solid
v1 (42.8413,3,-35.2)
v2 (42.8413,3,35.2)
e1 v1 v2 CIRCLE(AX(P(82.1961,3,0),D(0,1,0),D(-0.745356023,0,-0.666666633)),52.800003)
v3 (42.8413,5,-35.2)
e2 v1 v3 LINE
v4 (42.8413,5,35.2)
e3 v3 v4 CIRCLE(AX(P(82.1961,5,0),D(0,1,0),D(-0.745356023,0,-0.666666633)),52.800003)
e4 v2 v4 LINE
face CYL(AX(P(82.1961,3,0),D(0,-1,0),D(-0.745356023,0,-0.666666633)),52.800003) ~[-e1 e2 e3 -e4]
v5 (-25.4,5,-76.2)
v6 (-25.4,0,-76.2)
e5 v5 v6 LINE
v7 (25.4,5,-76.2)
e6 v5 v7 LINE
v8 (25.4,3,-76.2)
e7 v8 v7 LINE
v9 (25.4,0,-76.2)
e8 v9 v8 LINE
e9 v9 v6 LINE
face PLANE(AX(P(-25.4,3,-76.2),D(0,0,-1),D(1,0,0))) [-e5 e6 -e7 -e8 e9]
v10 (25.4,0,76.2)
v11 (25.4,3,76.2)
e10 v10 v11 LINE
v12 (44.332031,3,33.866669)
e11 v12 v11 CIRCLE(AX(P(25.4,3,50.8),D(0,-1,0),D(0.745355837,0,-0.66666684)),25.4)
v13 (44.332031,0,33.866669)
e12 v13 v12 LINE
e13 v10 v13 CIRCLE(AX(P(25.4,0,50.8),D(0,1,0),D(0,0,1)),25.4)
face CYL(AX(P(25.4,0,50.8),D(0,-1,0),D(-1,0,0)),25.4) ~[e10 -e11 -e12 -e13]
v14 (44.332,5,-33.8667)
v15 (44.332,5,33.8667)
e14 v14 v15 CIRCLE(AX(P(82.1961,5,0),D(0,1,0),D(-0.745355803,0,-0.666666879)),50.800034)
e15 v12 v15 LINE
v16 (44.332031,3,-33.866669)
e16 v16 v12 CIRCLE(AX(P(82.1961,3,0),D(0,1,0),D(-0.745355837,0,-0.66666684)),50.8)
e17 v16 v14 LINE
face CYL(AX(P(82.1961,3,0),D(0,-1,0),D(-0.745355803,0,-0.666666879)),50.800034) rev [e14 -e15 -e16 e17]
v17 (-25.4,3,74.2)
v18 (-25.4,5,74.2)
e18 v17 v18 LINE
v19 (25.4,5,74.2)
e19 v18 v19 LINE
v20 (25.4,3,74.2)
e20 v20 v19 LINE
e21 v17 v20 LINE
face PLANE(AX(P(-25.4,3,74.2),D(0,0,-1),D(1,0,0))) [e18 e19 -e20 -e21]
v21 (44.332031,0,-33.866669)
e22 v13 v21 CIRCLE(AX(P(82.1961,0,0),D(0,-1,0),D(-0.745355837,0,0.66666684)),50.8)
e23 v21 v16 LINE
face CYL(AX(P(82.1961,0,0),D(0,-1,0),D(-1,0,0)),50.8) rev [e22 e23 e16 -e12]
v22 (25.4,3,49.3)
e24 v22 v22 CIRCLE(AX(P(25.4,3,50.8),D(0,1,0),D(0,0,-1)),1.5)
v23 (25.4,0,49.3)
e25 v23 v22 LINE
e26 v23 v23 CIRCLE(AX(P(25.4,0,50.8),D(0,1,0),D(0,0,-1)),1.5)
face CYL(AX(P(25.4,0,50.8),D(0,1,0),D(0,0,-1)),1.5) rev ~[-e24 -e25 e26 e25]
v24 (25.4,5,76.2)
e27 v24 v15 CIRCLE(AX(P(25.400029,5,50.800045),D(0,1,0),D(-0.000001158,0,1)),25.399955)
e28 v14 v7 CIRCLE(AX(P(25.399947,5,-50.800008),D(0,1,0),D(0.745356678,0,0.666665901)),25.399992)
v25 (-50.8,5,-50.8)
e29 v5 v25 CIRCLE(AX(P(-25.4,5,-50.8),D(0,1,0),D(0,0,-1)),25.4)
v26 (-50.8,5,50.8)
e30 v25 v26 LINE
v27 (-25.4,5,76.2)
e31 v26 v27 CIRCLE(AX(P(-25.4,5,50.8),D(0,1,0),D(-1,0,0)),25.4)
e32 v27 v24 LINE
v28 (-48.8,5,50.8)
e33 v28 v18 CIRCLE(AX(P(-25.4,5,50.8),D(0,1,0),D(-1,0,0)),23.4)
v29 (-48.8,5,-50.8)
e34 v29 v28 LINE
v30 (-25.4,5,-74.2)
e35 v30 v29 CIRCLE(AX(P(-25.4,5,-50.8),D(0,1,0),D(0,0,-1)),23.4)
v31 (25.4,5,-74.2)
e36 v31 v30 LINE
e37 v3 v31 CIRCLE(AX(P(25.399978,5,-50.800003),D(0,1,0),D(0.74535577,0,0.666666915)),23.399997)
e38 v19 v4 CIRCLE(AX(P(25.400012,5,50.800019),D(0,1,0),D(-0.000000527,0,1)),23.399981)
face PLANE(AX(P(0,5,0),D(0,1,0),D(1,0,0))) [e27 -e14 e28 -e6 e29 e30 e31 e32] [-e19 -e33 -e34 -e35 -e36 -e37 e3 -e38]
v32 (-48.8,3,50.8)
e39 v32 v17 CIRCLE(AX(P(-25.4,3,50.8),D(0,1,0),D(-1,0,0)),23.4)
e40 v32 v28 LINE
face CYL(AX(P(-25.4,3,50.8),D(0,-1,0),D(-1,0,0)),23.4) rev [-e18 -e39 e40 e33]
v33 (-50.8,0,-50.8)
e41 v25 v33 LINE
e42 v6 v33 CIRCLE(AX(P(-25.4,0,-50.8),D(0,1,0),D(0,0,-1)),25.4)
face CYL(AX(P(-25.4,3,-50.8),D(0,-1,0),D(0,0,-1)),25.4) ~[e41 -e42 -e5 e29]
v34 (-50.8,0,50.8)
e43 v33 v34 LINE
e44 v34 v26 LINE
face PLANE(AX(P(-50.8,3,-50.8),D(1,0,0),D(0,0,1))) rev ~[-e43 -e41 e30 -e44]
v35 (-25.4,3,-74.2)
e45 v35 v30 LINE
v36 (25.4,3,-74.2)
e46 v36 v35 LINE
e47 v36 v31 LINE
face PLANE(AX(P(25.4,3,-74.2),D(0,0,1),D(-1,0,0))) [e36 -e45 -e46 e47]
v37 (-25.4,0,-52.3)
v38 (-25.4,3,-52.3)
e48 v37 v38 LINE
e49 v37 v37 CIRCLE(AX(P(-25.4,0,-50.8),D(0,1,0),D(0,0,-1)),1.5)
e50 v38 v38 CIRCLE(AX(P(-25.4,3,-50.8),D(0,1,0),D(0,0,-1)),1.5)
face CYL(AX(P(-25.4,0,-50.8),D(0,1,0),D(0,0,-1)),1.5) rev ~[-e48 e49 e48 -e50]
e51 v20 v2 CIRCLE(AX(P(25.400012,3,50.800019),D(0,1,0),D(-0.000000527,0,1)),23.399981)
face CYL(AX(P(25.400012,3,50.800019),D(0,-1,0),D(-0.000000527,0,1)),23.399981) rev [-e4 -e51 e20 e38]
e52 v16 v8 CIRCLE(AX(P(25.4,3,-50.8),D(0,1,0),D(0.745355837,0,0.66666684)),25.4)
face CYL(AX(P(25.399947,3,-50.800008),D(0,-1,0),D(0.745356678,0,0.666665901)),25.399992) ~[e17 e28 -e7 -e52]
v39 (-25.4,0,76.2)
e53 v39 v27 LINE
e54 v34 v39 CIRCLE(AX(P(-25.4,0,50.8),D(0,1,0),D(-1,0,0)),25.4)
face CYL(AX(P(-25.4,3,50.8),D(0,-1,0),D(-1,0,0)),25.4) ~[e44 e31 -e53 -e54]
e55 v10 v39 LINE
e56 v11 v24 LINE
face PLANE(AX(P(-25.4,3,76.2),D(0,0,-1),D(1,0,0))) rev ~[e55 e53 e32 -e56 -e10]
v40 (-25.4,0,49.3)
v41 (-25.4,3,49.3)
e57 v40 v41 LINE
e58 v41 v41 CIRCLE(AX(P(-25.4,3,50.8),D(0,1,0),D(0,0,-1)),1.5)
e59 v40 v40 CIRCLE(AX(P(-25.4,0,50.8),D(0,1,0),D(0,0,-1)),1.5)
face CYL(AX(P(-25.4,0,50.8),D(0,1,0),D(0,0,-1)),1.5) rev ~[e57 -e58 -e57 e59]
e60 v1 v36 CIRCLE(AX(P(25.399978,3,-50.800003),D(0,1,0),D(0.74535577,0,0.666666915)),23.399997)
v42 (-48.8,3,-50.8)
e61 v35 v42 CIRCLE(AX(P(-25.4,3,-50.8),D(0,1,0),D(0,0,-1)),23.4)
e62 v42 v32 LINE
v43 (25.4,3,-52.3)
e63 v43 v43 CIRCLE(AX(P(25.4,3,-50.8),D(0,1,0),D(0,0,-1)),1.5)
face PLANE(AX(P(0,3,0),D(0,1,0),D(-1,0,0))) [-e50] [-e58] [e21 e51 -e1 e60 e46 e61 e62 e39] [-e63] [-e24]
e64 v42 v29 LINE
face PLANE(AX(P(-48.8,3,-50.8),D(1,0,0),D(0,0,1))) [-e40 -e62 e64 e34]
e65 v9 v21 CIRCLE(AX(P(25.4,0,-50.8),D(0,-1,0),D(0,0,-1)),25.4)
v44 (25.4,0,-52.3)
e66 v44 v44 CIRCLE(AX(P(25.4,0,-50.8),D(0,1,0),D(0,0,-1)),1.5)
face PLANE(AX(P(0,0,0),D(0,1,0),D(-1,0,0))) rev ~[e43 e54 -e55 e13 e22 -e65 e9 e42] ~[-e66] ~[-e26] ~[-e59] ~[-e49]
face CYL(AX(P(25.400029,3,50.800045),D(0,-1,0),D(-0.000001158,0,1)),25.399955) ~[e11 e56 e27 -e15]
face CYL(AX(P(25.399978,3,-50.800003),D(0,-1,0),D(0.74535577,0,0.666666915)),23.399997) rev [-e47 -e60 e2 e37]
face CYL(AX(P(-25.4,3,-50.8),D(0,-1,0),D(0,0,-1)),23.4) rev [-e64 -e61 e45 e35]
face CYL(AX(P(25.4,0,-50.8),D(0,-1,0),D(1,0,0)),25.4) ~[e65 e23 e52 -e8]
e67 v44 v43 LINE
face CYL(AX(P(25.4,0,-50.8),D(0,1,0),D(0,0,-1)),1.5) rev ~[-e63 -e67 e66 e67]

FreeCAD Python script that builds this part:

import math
import FreeCAD as App
import Part
import Sketcher
Q = App.Units.Quantity

doc = App.newDocument("Part")
params = doc.addObject("Spreadsheet::Sheet", "Params")
for row, (alias, value) in enumerate([
    ("sketch1_radius", "2 in"),
    ("sketch1_radius2", "1 in"),
    ("sketch1_height", "4 in"),
    ("pad1_length", "0.1181102 in"),
    ("sketch2_radius", "1 in"),
    ("sketch2_radius2", "2 in"),
    ("sketch2_width", "2 in"),
    ("sketch2_height", "4 in"),
    ("pad2_length", "2 mm"),
    ("hole_diameter", "0.1181102 in"),
    ("hole_depth", "1 in"),
], start=1):
    params.set(f"A{row}", alias)
    params.set(f"B{row}", "=" + value)
    params.setAlias(f"B{row}", alias)

body = doc.addObject("PartDesign::Body", "Body")

sketch1 = doc.addObject("Sketcher::SketchObject", "Sketch")
body.addObject(sketch1)
sketch1.AttachmentSupport = (doc.XZ_Plane, [""])
sketch1.MapMode = "FlatFace"
sketch1.addGeometry(Part.ArcOfCircle(Part.Circle(App.Vector(82, 0, 0), App.Vector(0, 0, 1), 51), math.radians(138), math.radians(222)), False)
sketch1.addGeometry(Part.ArcOfCircle(Part.Circle(App.Vector(25, -51, 0), App.Vector(0, 0, 1), 25), math.radians(-90), math.radians(42)), False)
sketch1.addGeometry(Part.LineSegment(App.Vector(25, -76, 0), App.Vector(-25, -76, 0)), False)
sketch1.addGeometry(Part.ArcOfCircle(Part.Circle(App.Vector(-25, -51, 0), App.Vector(0, 0, 1), 25), math.radians(180), math.radians(270)), False)
sketch1.addGeometry(Part.LineSegment(App.Vector(-51, -51, 0), App.Vector(-51, 51, 0)), False)
sketch1.addGeometry(Part.ArcOfCircle(Part.Circle(App.Vector(-25, 51, 0), App.Vector(0, 0, 1), 25), math.radians(90), math.radians(180)), False)
sketch1.addGeometry(Part.LineSegment(App.Vector(-25, 76, 0), App.Vector(25, 76, 0)), False)
sketch1.addGeometry(Part.ArcOfCircle(Part.Circle(App.Vector(25, 51, 0), App.Vector(0, 0, 1), 25), math.radians(-42), math.radians(90)), False)
sketch1.addConstraint(Sketcher.Constraint("Tangent", 0, 2, 1, 2))
sketch1.addConstraint(Sketcher.Constraint("Tangent", 1, 1, 2, 1))
sketch1.addConstraint(Sketcher.Constraint("Tangent", 2, 2, 3, 2))
sketch1.addConstraint(Sketcher.Constraint("Tangent", 3, 1, 4, 1))
sketch1.addConstraint(Sketcher.Constraint("Tangent", 4, 2, 5, 2))
sketch1.addConstraint(Sketcher.Constraint("Tangent", 5, 1, 6, 1))
sketch1.addConstraint(Sketcher.Constraint("Tangent", 6, 2, 7, 2))
sketch1.addConstraint(Sketcher.Constraint("Tangent", 7, 1, 0, 1))
sketch1.addConstraint(Sketcher.Constraint("Horizontal", 2))
sketch1.addConstraint(Sketcher.Constraint("Vertical", 4))
sketch1.addConstraint(Sketcher.Constraint("Horizontal", 6))
sketch1.addConstraint(Sketcher.Constraint("Equal", 1, 3))
sketch1.addConstraint(Sketcher.Constraint("Equal", 3, 5))
sketch1.addConstraint(Sketcher.Constraint("Equal", 5, 7))
sketch1.addConstraint(Sketcher.Constraint("Symmetric", 1, 3, 5, 3, -1, 1))
sketch1.addConstraint(Sketcher.Constraint("PointOnObject", 0, 3, -1))
sketch1.addConstraint(Sketcher.Constraint("Radius", 0, Q("2 in")))
sketch1.addConstraint(Sketcher.Constraint("Radius", 1, Q("1 in")))
sketch1.addConstraint(Sketcher.Constraint("DistanceY", 4, 1, 4, 2, Q("4 in")))
sketch1.addConstraint(Sketcher.Constraint("DistanceX", -1, 1, 1, 3, Q("1 in")))
sketch1.setExpression("Constraints[16]", "Params.sketch1_radius")
sketch1.setExpression("Constraints[17]", "Params.sketch1_radius2")
sketch1.setExpression("Constraints[18]", "Params.sketch1_height")
pad1 = doc.addObject("PartDesign::Pad", "Pad")
body.addObject(pad1)
pad1.Profile = sketch1
pad1.setExpression("Length", "Params.pad1_length")
pad1.Reversed = True

sketch2 = doc.addObject("Sketcher::SketchObject", "Sketch001")
body.addObject(sketch2)
sketch2.AttachmentSupport = (doc.XZ_Plane, [""])
sketch2.MapMode = "FlatFace"
sketch2.AttachmentOffset = App.Placement(App.Vector(0, 0, -0.1181102 * 25.4), App.Rotation())
sketch2.addGeometry(Part.LineSegment(App.Vector(-51, -51, 0), App.Vector(-51, 51, 0)), False)
sketch2.addGeometry(Part.ArcOfCircle(Part.Circle(App.Vector(-25, 51, 0), App.Vector(0, 0, 1), 25), math.radians(90), math.radians(180)), False)
sketch2.addGeometry(Part.LineSegment(App.Vector(-25, 76, 0), App.Vector(25, 76, 0)), False)
sketch2.addGeometry(Part.ArcOfCircle(Part.Circle(App.Vector(25, 51, 0), App.Vector(0, 0, 1), 25), math.radians(-42), math.radians(90)), False)
sketch2.addGeometry(Part.ArcOfCircle(Part.Circle(App.Vector(82, 0, 0), App.Vector(0, 0, 1), 51), math.radians(138), math.radians(222)), False)
sketch2.addGeometry(Part.ArcOfCircle(Part.Circle(App.Vector(25, -51, 0), App.Vector(0, 0, 1), 25), math.radians(-90), math.radians(42)), False)
sketch2.addGeometry(Part.LineSegment(App.Vector(25, -76, 0), App.Vector(-25, -76, 0)), False)
sketch2.addGeometry(Part.ArcOfCircle(Part.Circle(App.Vector(-25, -51, 0), App.Vector(0, 0, 1), 25), math.radians(180), math.radians(270)), False)
sketch2.addGeometry(Part.ArcOfCircle(Part.Circle(App.Vector(-25, 51, 0), App.Vector(0, 0, 1), 23), math.radians(90), math.radians(180)), False)
sketch2.addGeometry(Part.LineSegment(App.Vector(-49, 51, 0), App.Vector(-49, -51, 0)), False)
sketch2.addGeometry(Part.ArcOfCircle(Part.Circle(App.Vector(-25, -51, 0), App.Vector(0, 0, 1), 23), math.radians(180), math.radians(270)), False)
sketch2.addGeometry(Part.LineSegment(App.Vector(-25, -74, 0), App.Vector(25, -74, 0)), False)
sketch2.addGeometry(Part.ArcOfCircle(Part.Circle(App.Vector(25, -51, 0), App.Vector(0, 0, 1), 23), math.radians(-90), math.radians(42)), False)
sketch2.addGeometry(Part.ArcOfCircle(Part.Circle(App.Vector(82, 0, 0), App.Vector(0, 0, 1), 53), math.radians(138), math.radians(222)), False)
sketch2.addGeometry(Part.ArcOfCircle(Part.Circle(App.Vector(25, 51, 0), App.Vector(0, 0, 1), 23), math.radians(-42), math.radians(90)), False)
sketch2.addGeometry(Part.LineSegment(App.Vector(25, 74, 0), App.Vector(-25, 74, 0)), False)
sketch2.addConstraint(Sketcher.Constraint("Tangent", 0, 2, 1, 2))
sketch2.addConstraint(Sketcher.Constraint("Tangent", 1, 1, 2, 1))
sketch2.addConstraint(Sketcher.Constraint("Tangent", 2, 2, 3, 2))
sketch2.addConstraint(Sketcher.Constraint("Tangent", 3, 1, 4, 1))
sketch2.addConstraint(Sketcher.Constraint("Tangent", 4, 2, 5, 2))
sketch2.addConstraint(Sketcher.Constraint("Tangent", 5, 1, 6, 1))
sketch2.addConstraint(Sketcher.Constraint("Tangent", 6, 2, 7, 2))
sketch2.addConstraint(Sketcher.Constraint("Tangent", 7, 1, 0, 1))
sketch2.addConstraint(Sketcher.Constraint("Tangent", 8, 2, 9, 1))
sketch2.addConstraint(Sketcher.Constraint("Tangent", 9, 2, 10, 1))
sketch2.addConstraint(Sketcher.Constraint("Tangent", 10, 2, 11, 1))
sketch2.addConstraint(Sketcher.Constraint("Tangent", 11, 2, 12, 1))
sketch2.addConstraint(Sketcher.Constraint("Tangent", 12, 2, 13, 2))
sketch2.addConstraint(Sketcher.Constraint("Tangent", 13, 1, 14, 1))
sketch2.addConstraint(Sketcher.Constraint("Tangent", 14, 2, 15, 1))
sketch2.addConstraint(Sketcher.Constraint("Tangent", 15, 2, 8, 1))
sketch2.addConstraint(Sketcher.Constraint("Vertical", 0))
sketch2.addConstraint(Sketcher.Constraint("Horizontal", 2))
sketch2.addConstraint(Sketcher.Constraint("Horizontal", 6))
sketch2.addConstraint(Sketcher.Constraint("Vertical", 9))
sketch2.addConstraint(Sketcher.Constraint("Horizontal", 11))
sketch2.addConstraint(Sketcher.Constraint("Horizontal", 15))
sketch2.addConstraint(Sketcher.Constraint("Coincident", 8, 3, 1, 3))
sketch2.addConstraint(Sketcher.Constraint("Coincident", 10, 3, 7, 3))
sketch2.addConstraint(Sketcher.Constraint("Coincident", 12, 3, 5, 3))
sketch2.addConstraint(Sketcher.Constraint("Coincident", 13, 3, 4, 3))
sketch2.addConstraint(Sketcher.Constraint("Equal", 1, 3))
sketch2.addConstraint(Sketcher.Constraint("Equal", 3, 5))
sketch2.addConstraint(Sketcher.Constraint("Equal", 5, 7))
sketch2.addConstraint(Sketcher.Constraint("Equal", 12, 14))
sketch2.addConstraint(Sketcher.Constraint("Symmetric", 1, 3, 5, 3, -1, 1))
sketch2.addConstraint(Sketcher.Constraint("PointOnObject", 4, 3, -1))
sketch2.addConstraint(Sketcher.Constraint("Radius", 1, Q("1 in")))
sketch2.addConstraint(Sketcher.Constraint("Radius", 4, Q("2 in")))
sketch2.addConstraint(Sketcher.Constraint("DistanceX", 2, 1, 2, 2, Q("2 in")))
sketch2.addConstraint(Sketcher.Constraint("DistanceY", 0, 1, 0, 2, Q("4 in")))
sketch2.addConstraint(Sketcher.Constraint("Radius", 8, 23.4))
sketch2.setExpression("Constraints[32]", "Params.sketch2_radius")
sketch2.setExpression("Constraints[33]", "Params.sketch2_radius2")
sketch2.setExpression("Constraints[34]", "Params.sketch2_width")
sketch2.setExpression("Constraints[35]", "Params.sketch2_height")
pad2 = doc.addObject("PartDesign::Pad", "Pad001")
body.addObject(pad2)
pad2.Profile = sketch2
pad2.setExpression("Length", "Params.pad2_length")
pad2.Reversed = True

sketch3 = doc.addObject("Sketcher::SketchObject", "Sketch002")
body.addObject(sketch3)
sketch3.AttachmentSupport = (doc.XZ_Plane, [""])
sketch3.MapMode = "FlatFace"
sketch3.addGeometry(Part.Circle(App.Vector(-25.4, 50.8, 0), App.Vector(0, 0, 1), 1.5), False)
sketch3.addGeometry(Part.Circle(App.Vector(25.4, 50.8, 0), App.Vector(0, 0, 1), 1.5), False)
sketch3.addGeometry(Part.Circle(App.Vector(25.4, -50.8, 0), App.Vector(0, 0, 1), 1.5), False)
sketch3.addGeometry(Part.Circle(App.Vector(-25.4, -50.8, 0), App.Vector(0, 0, 1), 1.5), False)
sketch3.addConstraint(Sketcher.Constraint("Equal", 0, 1))
sketch3.addConstraint(Sketcher.Constraint("Equal", 1, 2))
sketch3.addConstraint(Sketcher.Constraint("Equal", 2, 3))
sketch3.addConstraint(Sketcher.Constraint("Symmetric", 0, 3, 2, 3, -1, 1))
sketch3.addConstraint(Sketcher.Constraint("Symmetric", 1, 3, 3, 3, -1, 1))
sketch3.addConstraint(Sketcher.Constraint("Symmetric", 0, 3, 1, 3, -2))
sketch3.addConstraint(Sketcher.Constraint("DistanceX", 0, 3, -1, 1, Q("1 in")))
sketch3.addConstraint(Sketcher.Constraint("DistanceY", -1, 1, 0, 3, Q("2 in")))
sketch3.addConstraint(Sketcher.Constraint("Diameter", 0, Q("0.1181 in")))
doc.recompute()
hole = doc.addObject("PartDesign::Hole", "Hole")
body.addObject(hole)
hole.Profile = sketch3
hole.ThreadType = "None"
hole.setExpression("Diameter", "Params.hole_diameter")
hole.DepthType = "Dimension"
hole.setExpression("Depth", "Params.hole_depth")
hole.DrillPoint = "Angled"
hole.DrillPointAngle = 118

doc.recompute()
